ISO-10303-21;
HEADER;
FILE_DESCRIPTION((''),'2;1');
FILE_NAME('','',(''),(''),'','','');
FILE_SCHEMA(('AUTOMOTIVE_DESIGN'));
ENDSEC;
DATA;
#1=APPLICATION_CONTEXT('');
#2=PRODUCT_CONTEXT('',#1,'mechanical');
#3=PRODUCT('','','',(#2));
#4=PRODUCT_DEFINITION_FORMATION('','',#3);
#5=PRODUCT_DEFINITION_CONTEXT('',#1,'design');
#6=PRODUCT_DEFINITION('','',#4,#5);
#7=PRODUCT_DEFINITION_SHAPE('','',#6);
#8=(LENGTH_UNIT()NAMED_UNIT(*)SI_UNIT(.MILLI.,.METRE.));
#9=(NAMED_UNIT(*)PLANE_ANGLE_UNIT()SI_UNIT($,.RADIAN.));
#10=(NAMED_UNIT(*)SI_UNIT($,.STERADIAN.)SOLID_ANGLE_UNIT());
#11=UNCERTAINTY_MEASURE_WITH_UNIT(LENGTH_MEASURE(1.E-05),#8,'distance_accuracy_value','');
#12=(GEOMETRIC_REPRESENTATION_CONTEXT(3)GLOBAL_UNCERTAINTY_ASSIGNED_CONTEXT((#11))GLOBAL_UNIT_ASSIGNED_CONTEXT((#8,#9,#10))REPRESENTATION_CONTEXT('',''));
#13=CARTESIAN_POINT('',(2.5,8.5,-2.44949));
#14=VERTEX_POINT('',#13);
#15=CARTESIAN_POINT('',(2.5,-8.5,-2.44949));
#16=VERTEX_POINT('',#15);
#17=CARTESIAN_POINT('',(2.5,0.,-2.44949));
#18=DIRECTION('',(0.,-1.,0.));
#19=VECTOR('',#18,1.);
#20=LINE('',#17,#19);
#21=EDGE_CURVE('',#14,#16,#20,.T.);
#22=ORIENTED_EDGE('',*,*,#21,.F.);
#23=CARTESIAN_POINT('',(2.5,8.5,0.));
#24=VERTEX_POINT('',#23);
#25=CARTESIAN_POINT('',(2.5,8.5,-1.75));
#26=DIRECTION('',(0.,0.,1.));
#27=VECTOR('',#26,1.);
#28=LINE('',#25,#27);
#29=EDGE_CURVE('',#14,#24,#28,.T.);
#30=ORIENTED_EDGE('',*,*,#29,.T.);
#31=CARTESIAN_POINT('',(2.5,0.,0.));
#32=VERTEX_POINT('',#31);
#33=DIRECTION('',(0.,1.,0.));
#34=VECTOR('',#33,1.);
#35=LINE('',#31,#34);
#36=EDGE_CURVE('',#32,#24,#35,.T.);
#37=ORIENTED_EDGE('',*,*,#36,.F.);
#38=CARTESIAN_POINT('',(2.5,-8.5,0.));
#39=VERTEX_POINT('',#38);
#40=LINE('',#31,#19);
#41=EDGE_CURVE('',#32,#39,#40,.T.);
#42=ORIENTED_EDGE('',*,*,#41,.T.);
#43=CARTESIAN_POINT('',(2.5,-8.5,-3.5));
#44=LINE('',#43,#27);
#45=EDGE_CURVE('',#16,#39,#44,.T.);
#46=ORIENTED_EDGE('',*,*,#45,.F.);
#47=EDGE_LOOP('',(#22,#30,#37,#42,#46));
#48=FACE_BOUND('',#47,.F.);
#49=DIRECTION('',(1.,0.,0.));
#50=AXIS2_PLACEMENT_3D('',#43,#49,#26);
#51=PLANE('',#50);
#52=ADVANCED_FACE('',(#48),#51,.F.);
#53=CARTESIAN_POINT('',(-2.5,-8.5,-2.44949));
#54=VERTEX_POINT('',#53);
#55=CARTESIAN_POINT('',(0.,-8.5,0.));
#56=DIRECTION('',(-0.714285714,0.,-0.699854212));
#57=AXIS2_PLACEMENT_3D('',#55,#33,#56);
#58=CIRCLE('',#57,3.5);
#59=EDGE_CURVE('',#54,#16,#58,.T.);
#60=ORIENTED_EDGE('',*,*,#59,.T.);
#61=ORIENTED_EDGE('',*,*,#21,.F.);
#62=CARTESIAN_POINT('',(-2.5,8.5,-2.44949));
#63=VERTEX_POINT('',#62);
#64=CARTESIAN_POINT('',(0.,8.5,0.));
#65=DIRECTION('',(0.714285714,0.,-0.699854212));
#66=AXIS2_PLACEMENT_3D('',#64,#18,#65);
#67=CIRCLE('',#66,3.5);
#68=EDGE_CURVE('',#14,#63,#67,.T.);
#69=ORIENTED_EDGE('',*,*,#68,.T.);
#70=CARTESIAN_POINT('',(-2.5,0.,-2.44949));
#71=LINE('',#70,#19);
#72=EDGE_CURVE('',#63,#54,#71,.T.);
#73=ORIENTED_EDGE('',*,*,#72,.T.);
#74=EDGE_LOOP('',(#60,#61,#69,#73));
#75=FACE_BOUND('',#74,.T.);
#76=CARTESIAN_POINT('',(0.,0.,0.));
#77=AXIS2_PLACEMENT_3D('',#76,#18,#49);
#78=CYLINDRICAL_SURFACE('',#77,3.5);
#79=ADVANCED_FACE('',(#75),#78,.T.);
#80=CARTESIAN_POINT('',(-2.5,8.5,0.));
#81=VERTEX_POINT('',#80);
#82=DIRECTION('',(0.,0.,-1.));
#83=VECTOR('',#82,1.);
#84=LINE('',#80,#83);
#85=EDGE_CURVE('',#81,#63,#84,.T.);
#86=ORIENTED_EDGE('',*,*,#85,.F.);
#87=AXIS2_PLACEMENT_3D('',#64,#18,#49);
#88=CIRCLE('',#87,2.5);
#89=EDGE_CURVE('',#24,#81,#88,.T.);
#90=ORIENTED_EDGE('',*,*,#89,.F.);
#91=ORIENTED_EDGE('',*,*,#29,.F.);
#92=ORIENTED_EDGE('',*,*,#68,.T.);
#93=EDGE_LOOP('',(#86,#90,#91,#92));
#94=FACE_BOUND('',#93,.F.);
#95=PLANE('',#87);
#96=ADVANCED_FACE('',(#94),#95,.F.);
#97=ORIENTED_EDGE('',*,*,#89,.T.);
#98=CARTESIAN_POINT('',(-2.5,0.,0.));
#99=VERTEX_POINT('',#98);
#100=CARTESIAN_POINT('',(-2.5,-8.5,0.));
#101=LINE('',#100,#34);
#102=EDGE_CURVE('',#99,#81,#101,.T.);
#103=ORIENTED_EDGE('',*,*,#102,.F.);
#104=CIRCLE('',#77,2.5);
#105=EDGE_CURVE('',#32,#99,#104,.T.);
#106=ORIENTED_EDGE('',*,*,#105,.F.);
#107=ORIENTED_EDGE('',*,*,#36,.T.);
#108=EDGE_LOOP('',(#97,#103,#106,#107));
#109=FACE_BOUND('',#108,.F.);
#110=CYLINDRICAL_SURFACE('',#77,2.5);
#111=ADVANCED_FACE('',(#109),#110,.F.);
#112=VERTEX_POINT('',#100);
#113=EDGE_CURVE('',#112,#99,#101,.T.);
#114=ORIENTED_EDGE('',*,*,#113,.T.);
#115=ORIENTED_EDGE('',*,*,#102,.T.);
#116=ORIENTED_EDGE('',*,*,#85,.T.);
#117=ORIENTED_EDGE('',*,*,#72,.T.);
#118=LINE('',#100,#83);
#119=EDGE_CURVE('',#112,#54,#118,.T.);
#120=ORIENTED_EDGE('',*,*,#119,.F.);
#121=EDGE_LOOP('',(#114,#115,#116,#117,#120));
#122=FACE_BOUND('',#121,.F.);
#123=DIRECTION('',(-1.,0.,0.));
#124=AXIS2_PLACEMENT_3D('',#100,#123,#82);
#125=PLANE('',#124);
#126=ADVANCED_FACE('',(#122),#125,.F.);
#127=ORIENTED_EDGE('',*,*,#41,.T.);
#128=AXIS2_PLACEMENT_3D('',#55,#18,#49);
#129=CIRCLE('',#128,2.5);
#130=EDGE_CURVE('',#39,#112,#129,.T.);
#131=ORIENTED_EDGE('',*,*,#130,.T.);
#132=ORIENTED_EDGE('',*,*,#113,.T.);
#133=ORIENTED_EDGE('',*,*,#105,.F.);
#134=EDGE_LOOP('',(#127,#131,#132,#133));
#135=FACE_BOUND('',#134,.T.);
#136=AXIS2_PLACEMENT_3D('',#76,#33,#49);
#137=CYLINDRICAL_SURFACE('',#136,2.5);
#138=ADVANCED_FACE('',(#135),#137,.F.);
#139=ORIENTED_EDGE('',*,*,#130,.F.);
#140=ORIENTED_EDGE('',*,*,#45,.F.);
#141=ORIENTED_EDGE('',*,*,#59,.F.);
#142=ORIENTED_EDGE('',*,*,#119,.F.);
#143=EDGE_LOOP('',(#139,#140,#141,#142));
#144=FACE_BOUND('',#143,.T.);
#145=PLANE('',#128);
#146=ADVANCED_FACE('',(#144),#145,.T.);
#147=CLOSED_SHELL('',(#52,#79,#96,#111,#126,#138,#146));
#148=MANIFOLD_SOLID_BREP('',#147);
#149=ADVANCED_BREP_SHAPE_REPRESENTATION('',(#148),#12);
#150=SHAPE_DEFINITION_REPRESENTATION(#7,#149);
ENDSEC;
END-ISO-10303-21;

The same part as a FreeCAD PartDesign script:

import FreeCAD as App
import Part
import Sketcher
from FreeCAD import Vector

doc = App.newDocument("Part")
body = doc.addObject("PartDesign::Body", "Body")

# Sketch on XZ plane
sketch1 = body.newObject("Sketcher::SketchObject", "Sketch")
sketch1.AttachmentSupport = (doc.getObject("XZ_Plane"), [""])
sketch1.MapMode = "FlatFace"
sketch1.addGeometry(Part.Circle(Vector(0, 0, 0), Vector(0, 0, 1), 3.5), False)
sketch1.addGeometry(Part.Circle(Vector(0, 0, 0), Vector(0, 0, 1), 2.5), False)
sketch1.addConstraint(Sketcher.Constraint("Coincident", 0, 3, -1, 1))
sketch1.addConstraint(Sketcher.Constraint("Coincident", 1, 3, -1, 1))
sketch1.addConstraint(Sketcher.Constraint("Diameter", 0, 7.0))
sketch1.addConstraint(Sketcher.Constraint("Diameter", 1, 5.0))
pad1 = body.newObject("PartDesign::Pad", "Pad")
pad1.Profile = sketch1
pad1.Type = "TwoLengths"
pad1.Length = 8.5
pad1.Length2 = 8.5

# Sketch on XZ plane
sketch2 = body.newObject("Sketcher::SketchObject", "Sketch001")
sketch2.AttachmentSupport = (doc.getObject("XZ_Plane"), [""])
sketch2.MapMode = "FlatFace"
sketch2.AttachmentOffset = App.Placement(Vector(0, 0, 8.5), App.Rotation())
sketch2.addGeometry(Part.LineSegment(Vector(2.5, 0, 0), Vector(-2.5, 0, 0)), False)
sketch2.addGeometry(Part.LineSegment(Vector(-2.5, 0, 0), Vector(-2.5, -3.5, 0)), False)
sketch2.addGeometry(Part.LineSegment(Vector(-2.5, -3.5, 0), Vector(2.5, -3.5, 0)), False)
sketch2.addGeometry(Part.LineSegment(Vector(2.5, -3.5, 0), Vector(2.5, 0, 0)), False)
sketch2.addConstraint(Sketcher.Constraint("Coincident", 0, 2, 1, 1))
sketch2.addConstraint(Sketcher.Constraint("Coincident", 1, 2, 2, 1))
sketch2.addConstraint(Sketcher.Constraint("Coincident", 2, 2, 3, 1))
sketch2.addConstraint(Sketcher.Constraint("Coincident", 3, 2, 0, 1))
sketch2.addConstraint(Sketcher.Constraint("Horizontal", 0))
sketch2.addConstraint(Sketcher.Constraint("Vertical", 1))
sketch2.addConstraint(Sketcher.Constraint("Horizontal", 2))
sketch2.addConstraint(Sketcher.Constraint("Vertical", 3))
sketch2.addConstraint(Sketcher.Constraint("Symmetric", 0, 2, 3, 2, -1, 1))
sketch2.addConstraint(Sketcher.Constraint("DistanceX", 0, 2, 0, 1, 5.0))
sketch2.addConstraint(Sketcher.Constraint("DistanceY", 1, 2, 1, 1, 3.5))
pocket1 = body.newObject("PartDesign::Pocket", "Pocket")
pocket1.Profile = sketch2
pocket1.Type = "ThroughAll"

doc.recompute()
